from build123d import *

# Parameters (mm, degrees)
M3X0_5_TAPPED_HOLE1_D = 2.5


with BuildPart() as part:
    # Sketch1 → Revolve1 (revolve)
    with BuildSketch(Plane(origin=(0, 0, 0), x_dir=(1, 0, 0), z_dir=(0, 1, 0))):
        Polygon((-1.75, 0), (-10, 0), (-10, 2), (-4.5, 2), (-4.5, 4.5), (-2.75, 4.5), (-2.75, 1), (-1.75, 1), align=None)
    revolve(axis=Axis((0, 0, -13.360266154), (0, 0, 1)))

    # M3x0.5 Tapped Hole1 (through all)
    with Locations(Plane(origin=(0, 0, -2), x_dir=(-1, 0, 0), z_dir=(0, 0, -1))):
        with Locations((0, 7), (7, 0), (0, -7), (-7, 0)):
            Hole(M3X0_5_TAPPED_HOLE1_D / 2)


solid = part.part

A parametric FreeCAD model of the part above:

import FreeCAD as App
import Part
import Sketcher

V = App.Vector
Q = App.Units.Quantity


def add_polygon(sketch, points):
    """Adds a closed chain of lines whose ends are joined by coincident constraints."""
    first, n = sketch.GeometryCount, len(points)
    for a, b in zip(points, points[1:] + points[:1]):
        sketch.addGeometry(Part.LineSegment(App.Vector(*a, 0), App.Vector(*b, 0)), False)
    for i in range(n):
        sketch.addConstraint(Sketcher.Constraint("Coincident", first + i, 2, first + (i + 1) % n, 1))

doc = App.newDocument("Part")
body = doc.addObject("PartDesign::Body", "Body")

# Sketch on XZ plane
sketch1 = doc.addObject("Sketcher::SketchObject", "Sketch")
body.addObject(sketch1)
sketch1.AttachmentSupport = (doc.XZ_Plane, [""])
sketch1.MapMode = "FlatFace"
add_polygon(sketch1, [(-10, 0), (-1.75, 0), (-1.75, -1), (-2.75, -1), (-2.75, -4.5), (-4.5, -4.5), (-4.5, -2), (-10, -2)])  # lines 0-7
sketch1.addConstraint(Sketcher.Constraint("Horizontal", 0))
sketch1.addConstraint(Sketcher.Constraint("Vertical", 1))
sketch1.addConstraint(Sketcher.Constraint("Horizontal", 2))
sketch1.addConstraint(Sketcher.Constraint("Vertical", 3))
sketch1.addConstraint(Sketcher.Constraint("Horizontal", 4))
sketch1.addConstraint(Sketcher.Constraint("Vertical", 5))
sketch1.addConstraint(Sketcher.Constraint("Horizontal", 6))
sketch1.addConstraint(Sketcher.Constraint("Vertical", 7))
sketch1.addConstraint(Sketcher.Constraint("PointOnObject", 0, 2, -1))
sketch1.addConstraint(Sketcher.Constraint("Equal", 2, 1))
sketch1.addConstraint(Sketcher.Constraint("DistanceX", 2, 2, 2, 1, Q("1 mm")))
sketch1.addConstraint(Sketcher.Constraint("DistanceY", 7, 1, 7, 2, Q("2 mm")))
sketch1.addConstraint(Sketcher.Constraint("DistanceX", 6, 2, 6, 1, Q("5.5 mm")))
sketch1.addConstraint(Sketcher.Constraint("DistanceY", 3, 2, 3, 1, Q("3.5 mm")))
sketch1.addConstraint(Sketcher.Constraint("DistanceX", 6, 2, -1, 1, Q("10 mm")))
sketch1.addConstraint(Sketcher.Constraint("DistanceX", 0, 1, 0, 2, Q("8.25 mm")))
revolution = doc.addObject("PartDesign::Revolution", "Revolution")
body.addObject(revolution)
revolution.Profile = sketch1
revolution.ReferenceAxis = (sketch1, ["V_Axis"])
revolution.Angle = 360

# Sketch on XY plane
sketch2 = doc.addObject("Sketcher::SketchObject", "Sketch001")
body.addObject(sketch2)
sketch2.AttachmentSupport = (doc.XY_Plane, [""])
sketch2.MapMode = "FlatFace"
sketch2.AttachmentOffset = App.Placement(V(0, 0, -2), App.Rotation())
sketch2.addGeometry(Part.Circle(V(0, 7, 0), V(0, 0, 1), 1.25), False)
sketch2.addGeometry(Part.Circle(V(-7, 0, 0), V(0, 0, 1), 1.25), False)
sketch2.addGeometry(Part.Circle(V(0, -7, 0), V(0, 0, 1), 1.25), False)
sketch2.addGeometry(Part.Circle(V(7, 0, 0), V(0, 0, 1), 1.25), False)
sketch2.addConstraint(Sketcher.Constraint("Equal", 0, 1))
sketch2.addConstraint(Sketcher.Constraint("Equal", 1, 2))
sketch2.addConstraint(Sketcher.Constraint("Equal", 2, 3))
sketch2.addConstraint(Sketcher.Constraint("Symmetric", 0, 3, 2, 3, -1, 1))
sketch2.addConstraint(Sketcher.Constraint("Symmetric", 1, 3, 3, 3, -1, 1))
sketch2.addConstraint(Sketcher.Constraint("PointOnObject", 0, 3, -2))
sketch2.addConstraint(Sketcher.Constraint("PointOnObject", 1, 3, -1))
sketch2.addConstraint(Sketcher.Constraint("Diameter", 0, Q("2.5 mm")))
sketch2.addConstraint(Sketcher.Constraint("DistanceY", -1, 1, 0, 3, Q("7 mm")))
sketch2.addConstraint(Sketcher.Constraint("DistanceX", 1, 3, -1, 1, Q("7 mm")))
doc.recompute()
hole = doc.addObject("PartDesign::Hole", "Hole")
body.addObject(hole)
hole.Profile = sketch2
hole.ThreadType = "None"
hole.Diameter = 2.5
hole.DepthType = "ThroughAll"
hole.Reversed = True

doc.recompute()
